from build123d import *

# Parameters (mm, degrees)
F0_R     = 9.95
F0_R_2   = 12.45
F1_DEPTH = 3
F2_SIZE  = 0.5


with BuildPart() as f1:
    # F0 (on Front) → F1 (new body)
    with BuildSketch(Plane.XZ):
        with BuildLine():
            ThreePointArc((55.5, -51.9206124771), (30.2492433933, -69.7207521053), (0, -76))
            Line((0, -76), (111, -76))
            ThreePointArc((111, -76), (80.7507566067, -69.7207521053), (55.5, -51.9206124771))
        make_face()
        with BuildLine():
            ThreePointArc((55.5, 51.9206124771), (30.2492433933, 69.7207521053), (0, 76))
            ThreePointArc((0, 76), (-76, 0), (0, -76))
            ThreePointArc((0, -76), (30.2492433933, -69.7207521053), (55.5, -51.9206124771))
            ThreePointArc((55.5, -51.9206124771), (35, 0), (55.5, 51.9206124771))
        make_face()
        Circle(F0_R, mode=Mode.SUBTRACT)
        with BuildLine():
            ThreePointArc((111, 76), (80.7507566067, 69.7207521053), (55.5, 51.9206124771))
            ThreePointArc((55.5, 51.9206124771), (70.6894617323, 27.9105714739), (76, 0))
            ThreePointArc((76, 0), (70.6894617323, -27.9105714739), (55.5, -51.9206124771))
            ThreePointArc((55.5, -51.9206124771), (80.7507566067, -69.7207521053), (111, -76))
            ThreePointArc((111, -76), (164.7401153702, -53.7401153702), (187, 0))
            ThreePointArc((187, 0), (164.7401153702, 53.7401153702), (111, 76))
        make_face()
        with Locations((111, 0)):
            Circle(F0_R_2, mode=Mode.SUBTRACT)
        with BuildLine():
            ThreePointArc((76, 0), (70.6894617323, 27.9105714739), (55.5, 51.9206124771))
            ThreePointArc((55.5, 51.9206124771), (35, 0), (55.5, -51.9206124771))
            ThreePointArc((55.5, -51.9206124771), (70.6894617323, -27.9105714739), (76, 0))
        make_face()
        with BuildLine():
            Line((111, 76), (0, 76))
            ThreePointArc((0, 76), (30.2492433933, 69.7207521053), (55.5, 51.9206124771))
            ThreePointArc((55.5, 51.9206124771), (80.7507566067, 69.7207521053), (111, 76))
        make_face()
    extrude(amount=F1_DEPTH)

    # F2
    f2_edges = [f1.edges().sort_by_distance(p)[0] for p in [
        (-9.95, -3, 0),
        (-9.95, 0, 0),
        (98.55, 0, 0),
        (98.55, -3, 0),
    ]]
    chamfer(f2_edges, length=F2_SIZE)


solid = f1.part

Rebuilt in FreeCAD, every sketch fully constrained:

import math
import FreeCAD as App
import Part
import Sketcher
from FreeCAD import Vector
Q = App.Units.Quantity


def edges_at(feature, points):
    """Names of the edges that pass closest to the given points."""
    edges = feature.Shape.Edges
    near = lambda p: min(range(len(edges)), key=lambda i: edges[i].distToShape(Part.Vertex(*p))[0])
    return sorted({f"Edge{near(p) + 1}" for p in points})

doc = App.newDocument("Part")
body = doc.addObject("PartDesign::Body", "Body")

# Sketch on XZ plane
sketch1 = body.newObject("Sketcher::SketchObject", "Sketch")
sketch1.AttachmentSupport = (doc.getObject("XZ_Plane"), [""])
sketch1.MapMode = "FlatFace"
sketch1.addGeometry([
    Part.ArcOfCircle(Part.Circle(Vector(111, 0, 0), Vector(0, 0, 1), 76), math.radians(-90), math.radians(0)),  # 0
    Part.ArcOfCircle(Part.Circle(Vector(111, 0, 0), Vector(0, 0, 1), 76), math.radians(0), math.radians(90)),  # 1
    Part.LineSegment(Vector(111, 76, 0), Vector(0, 76, 0)),  # 2
    Part.ArcOfCircle(Part.Circle(Vector(0, 0, 0), Vector(0, 0, 1), 76), math.radians(90), math.radians(270)),  # 3
    Part.LineSegment(Vector(0, -76, 0), Vector(111, -76, 0)),  # 4
    Part.Circle(Vector(0, 0, 0), Vector(0, 0, 1), 10),  # 5
    Part.Circle(Vector(111, 0, 0), Vector(0, 0, 1), 12),  # 6
], False)
sketch1.addConstraint([
    Sketcher.Constraint("Tangent", 0, 2, 1, 1),
    Sketcher.Constraint("Tangent", 1, 2, 2, 1),
    Sketcher.Constraint("Tangent", 2, 2, 3, 1),
    Sketcher.Constraint("Tangent", 3, 2, 4, 1),
    Sketcher.Constraint("Tangent", 4, 2, 0, 1),
    Sketcher.Constraint("Horizontal", 2),
    Sketcher.Constraint("Horizontal", 4),
    Sketcher.Constraint("Coincident", 3, 3, -1, 1),
    Sketcher.Constraint("Coincident", 5, 3, -1, 1),
    Sketcher.Constraint("Coincident", 6, 3, 0, 3),
    Sketcher.Constraint("Equal", 0, 1),
    Sketcher.Constraint("PointOnObject", 0, 2, -1),
    Sketcher.Constraint("Radius", 0, Q("76 mm")),
    Sketcher.Constraint("Diameter", 5, Q("19.9 mm")),
    Sketcher.Constraint("Diameter", 6, Q("24.9 mm")),
    Sketcher.Constraint("DistanceX", 2, 2, 2, 1, Q("111 mm")),
])
pad1 = body.newObject("PartDesign::Pad", "Pad")
pad1.Profile = sketch1
pad1.Length = 3
doc.recompute()

chamfer = body.newObject("PartDesign::Chamfer", "Chamfer")
chamfer.Base = (pad1, edges_at(pad1, [
    (-9.95, -3, 0),
    (-9.95, 0, 0),
    (98.55, 0, 0),
    (98.55, -3, 0),
]))
chamfer.Size = 0.5

doc.recompute()
